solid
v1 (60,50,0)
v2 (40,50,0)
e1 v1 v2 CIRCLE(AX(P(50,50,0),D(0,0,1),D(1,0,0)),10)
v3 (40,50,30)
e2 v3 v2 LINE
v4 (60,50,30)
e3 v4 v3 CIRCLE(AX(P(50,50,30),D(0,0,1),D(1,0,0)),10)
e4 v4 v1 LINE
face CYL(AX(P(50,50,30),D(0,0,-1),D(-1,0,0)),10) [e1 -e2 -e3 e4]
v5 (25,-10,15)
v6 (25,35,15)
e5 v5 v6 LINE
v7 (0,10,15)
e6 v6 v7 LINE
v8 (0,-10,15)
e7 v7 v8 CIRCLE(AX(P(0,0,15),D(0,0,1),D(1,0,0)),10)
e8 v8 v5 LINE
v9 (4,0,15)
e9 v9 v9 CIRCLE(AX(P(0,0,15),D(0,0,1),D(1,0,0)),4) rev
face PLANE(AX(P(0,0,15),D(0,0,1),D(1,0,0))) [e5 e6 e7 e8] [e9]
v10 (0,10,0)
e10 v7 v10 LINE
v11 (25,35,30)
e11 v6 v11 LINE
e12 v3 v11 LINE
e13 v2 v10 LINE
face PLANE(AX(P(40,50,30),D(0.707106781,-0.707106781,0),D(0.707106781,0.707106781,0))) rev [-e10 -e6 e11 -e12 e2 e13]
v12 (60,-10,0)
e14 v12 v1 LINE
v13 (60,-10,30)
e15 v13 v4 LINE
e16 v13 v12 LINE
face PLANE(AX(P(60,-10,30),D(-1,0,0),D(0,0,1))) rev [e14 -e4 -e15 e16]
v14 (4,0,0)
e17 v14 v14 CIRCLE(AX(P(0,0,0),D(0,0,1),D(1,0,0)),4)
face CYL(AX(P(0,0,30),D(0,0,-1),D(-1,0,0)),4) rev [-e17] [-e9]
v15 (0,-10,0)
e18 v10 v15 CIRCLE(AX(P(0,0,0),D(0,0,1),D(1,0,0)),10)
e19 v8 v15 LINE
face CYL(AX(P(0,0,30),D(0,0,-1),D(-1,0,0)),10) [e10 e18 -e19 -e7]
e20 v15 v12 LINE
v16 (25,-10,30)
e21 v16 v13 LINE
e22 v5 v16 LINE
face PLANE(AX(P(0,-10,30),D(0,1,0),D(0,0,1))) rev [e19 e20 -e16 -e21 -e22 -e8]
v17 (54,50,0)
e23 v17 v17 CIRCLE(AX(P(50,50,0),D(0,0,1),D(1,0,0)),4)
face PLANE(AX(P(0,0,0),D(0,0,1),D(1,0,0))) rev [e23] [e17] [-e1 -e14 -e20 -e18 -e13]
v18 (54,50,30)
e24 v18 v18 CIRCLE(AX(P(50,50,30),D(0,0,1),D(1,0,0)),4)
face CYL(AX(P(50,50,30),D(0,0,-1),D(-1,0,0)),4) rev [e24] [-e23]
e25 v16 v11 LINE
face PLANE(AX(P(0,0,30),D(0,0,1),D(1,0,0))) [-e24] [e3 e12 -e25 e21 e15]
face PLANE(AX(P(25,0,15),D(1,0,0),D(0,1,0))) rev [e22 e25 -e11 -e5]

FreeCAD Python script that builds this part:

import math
import FreeCAD as App
import Part
import Sketcher
Q = App.Units.Quantity


def add_polygon(sketch, points):
    """Adds a closed chain of lines whose ends are joined by coincident constraints."""
    first, n = sketch.GeometryCount, len(points)
    for a, b in zip(points, points[1:] + points[:1]):
        sketch.addGeometry(Part.LineSegment(App.Vector(*a, 0), App.Vector(*b, 0)), False)
    for i in range(n):
        sketch.addConstraint(Sketcher.Constraint("Coincident", first + i, 2, first + (i + 1) % n, 1))

doc = App.newDocument("Part")
body = doc.addObject("PartDesign::Body", "Body")

sketch1 = body.newObject("Sketcher::SketchObject", "Sketch")
sketch1.AttachmentSupport = (doc.getObject("XY_Plane"), [""])
sketch1.MapMode = "FlatFace"
sketch1.addGeometry([
    Part.LineSegment(App.Vector(0, -10, 0), App.Vector(60, -10, 0)),
    Part.LineSegment(App.Vector(60, -10, 0), App.Vector(60, 50, 0)),
    Part.ArcOfCircle(Part.Circle(App.Vector(50, 50, 0), App.Vector(0, 0, 1), 10), math.radians(0), math.radians(180)),
    Part.LineSegment(App.Vector(40, 50, 0), App.Vector(0, 10, 0)),
    Part.ArcOfCircle(Part.Circle(App.Vector(0, 0, 0), App.Vector(0, 0, 1), 10), math.radians(90), math.radians(270)),
    Part.Circle(App.Vector(0, 0, 0), App.Vector(0, 0, 1), 4),
    Part.Circle(App.Vector(50, 50, 0), App.Vector(0, 0, 1), 4),
], False)
sketch1.addConstraint([
    Sketcher.Constraint("Coincident", 0, 2, 1, 1),
    Sketcher.Constraint("Tangent", 1, 2, 2, 1),
    Sketcher.Constraint("Coincident", 2, 2, 3, 1),
    Sketcher.Constraint("Coincident", 3, 2, 4, 1),
    Sketcher.Constraint("Tangent", 4, 2, 0, 1),
    Sketcher.Constraint("Horizontal", 0),
    Sketcher.Constraint("Vertical", 1),
    Sketcher.Constraint("Coincident", 4, 3, -1, 1),
    Sketcher.Constraint("Coincident", 5, 3, -1, 1),
    Sketcher.Constraint("Coincident", 6, 3, 2, 3),
    Sketcher.Constraint("Equal", 2, 4),
    Sketcher.Constraint("Equal", 5, 6),
    Sketcher.Constraint("PointOnObject", 3, 2, -2),
    Sketcher.Constraint("Horizontal", 1, 2, 2, 2),
    Sketcher.Constraint("Equal", 0, 1),
    Sketcher.Constraint("Diameter", 5, Q("8 mm")),
    Sketcher.Constraint("Radius", 2, Q("10 mm")),
    Sketcher.Constraint("DistanceX", 0, 1, 0, 2, Q("60 mm")),
])
pad1 = body.newObject("PartDesign::Pad", "Pad")
pad1.Profile = sketch1
pad1.Length = 30

sketch2 = body.newObject("Sketcher::SketchObject", "Sketch001")
sketch2.AttachmentSupport = (doc.getObject("XY_Plane"), [""])
sketch2.MapMode = "FlatFace"
sketch2.AttachmentOffset = App.Placement(App.Vector(0, 0, 15), App.Rotation())
add_polygon(sketch2, [(60, -218), (60, -10), (25, -10), (25, 243), (-390, 211), (-355, -249)])
sketch2.addConstraint([
    Sketcher.Constraint("Vertical", 0),
    Sketcher.Constraint("Horizontal", 1),
    Sketcher.Constraint("Vertical", 2),
    Sketcher.Constraint("Perpendicular", 3, 4),
    Sketcher.Constraint("Perpendicular", 4, 5),
    Sketcher.Constraint("Equal", 3, 5),
    Sketcher.Constraint("DistanceX", 1, 2, 1, 1, Q("35 mm")),
    Sketcher.Constraint("DistanceX", -1, 1, 0, 2, Q("60 mm")),
    Sketcher.Constraint("DistanceY", 0, 2, -1, 1, Q("10 mm")),
    Sketcher.Constraint("DistanceY", 0, 1, 0, 2, Q("207.989899 mm")),
    Sketcher.Constraint("DistanceY", 2, 1, 2, 2, Q("252.989899 mm")),
    Sketcher.Constraint("DistanceX", 3, 2, -1, 1, Q("389.785969 mm")),
])
pocket1 = body.newObject("PartDesign::Pocket", "Pocket")
pocket1.Profile = sketch2
pocket1.Length = 15
pocket1.Reversed = True

doc.recompute()
